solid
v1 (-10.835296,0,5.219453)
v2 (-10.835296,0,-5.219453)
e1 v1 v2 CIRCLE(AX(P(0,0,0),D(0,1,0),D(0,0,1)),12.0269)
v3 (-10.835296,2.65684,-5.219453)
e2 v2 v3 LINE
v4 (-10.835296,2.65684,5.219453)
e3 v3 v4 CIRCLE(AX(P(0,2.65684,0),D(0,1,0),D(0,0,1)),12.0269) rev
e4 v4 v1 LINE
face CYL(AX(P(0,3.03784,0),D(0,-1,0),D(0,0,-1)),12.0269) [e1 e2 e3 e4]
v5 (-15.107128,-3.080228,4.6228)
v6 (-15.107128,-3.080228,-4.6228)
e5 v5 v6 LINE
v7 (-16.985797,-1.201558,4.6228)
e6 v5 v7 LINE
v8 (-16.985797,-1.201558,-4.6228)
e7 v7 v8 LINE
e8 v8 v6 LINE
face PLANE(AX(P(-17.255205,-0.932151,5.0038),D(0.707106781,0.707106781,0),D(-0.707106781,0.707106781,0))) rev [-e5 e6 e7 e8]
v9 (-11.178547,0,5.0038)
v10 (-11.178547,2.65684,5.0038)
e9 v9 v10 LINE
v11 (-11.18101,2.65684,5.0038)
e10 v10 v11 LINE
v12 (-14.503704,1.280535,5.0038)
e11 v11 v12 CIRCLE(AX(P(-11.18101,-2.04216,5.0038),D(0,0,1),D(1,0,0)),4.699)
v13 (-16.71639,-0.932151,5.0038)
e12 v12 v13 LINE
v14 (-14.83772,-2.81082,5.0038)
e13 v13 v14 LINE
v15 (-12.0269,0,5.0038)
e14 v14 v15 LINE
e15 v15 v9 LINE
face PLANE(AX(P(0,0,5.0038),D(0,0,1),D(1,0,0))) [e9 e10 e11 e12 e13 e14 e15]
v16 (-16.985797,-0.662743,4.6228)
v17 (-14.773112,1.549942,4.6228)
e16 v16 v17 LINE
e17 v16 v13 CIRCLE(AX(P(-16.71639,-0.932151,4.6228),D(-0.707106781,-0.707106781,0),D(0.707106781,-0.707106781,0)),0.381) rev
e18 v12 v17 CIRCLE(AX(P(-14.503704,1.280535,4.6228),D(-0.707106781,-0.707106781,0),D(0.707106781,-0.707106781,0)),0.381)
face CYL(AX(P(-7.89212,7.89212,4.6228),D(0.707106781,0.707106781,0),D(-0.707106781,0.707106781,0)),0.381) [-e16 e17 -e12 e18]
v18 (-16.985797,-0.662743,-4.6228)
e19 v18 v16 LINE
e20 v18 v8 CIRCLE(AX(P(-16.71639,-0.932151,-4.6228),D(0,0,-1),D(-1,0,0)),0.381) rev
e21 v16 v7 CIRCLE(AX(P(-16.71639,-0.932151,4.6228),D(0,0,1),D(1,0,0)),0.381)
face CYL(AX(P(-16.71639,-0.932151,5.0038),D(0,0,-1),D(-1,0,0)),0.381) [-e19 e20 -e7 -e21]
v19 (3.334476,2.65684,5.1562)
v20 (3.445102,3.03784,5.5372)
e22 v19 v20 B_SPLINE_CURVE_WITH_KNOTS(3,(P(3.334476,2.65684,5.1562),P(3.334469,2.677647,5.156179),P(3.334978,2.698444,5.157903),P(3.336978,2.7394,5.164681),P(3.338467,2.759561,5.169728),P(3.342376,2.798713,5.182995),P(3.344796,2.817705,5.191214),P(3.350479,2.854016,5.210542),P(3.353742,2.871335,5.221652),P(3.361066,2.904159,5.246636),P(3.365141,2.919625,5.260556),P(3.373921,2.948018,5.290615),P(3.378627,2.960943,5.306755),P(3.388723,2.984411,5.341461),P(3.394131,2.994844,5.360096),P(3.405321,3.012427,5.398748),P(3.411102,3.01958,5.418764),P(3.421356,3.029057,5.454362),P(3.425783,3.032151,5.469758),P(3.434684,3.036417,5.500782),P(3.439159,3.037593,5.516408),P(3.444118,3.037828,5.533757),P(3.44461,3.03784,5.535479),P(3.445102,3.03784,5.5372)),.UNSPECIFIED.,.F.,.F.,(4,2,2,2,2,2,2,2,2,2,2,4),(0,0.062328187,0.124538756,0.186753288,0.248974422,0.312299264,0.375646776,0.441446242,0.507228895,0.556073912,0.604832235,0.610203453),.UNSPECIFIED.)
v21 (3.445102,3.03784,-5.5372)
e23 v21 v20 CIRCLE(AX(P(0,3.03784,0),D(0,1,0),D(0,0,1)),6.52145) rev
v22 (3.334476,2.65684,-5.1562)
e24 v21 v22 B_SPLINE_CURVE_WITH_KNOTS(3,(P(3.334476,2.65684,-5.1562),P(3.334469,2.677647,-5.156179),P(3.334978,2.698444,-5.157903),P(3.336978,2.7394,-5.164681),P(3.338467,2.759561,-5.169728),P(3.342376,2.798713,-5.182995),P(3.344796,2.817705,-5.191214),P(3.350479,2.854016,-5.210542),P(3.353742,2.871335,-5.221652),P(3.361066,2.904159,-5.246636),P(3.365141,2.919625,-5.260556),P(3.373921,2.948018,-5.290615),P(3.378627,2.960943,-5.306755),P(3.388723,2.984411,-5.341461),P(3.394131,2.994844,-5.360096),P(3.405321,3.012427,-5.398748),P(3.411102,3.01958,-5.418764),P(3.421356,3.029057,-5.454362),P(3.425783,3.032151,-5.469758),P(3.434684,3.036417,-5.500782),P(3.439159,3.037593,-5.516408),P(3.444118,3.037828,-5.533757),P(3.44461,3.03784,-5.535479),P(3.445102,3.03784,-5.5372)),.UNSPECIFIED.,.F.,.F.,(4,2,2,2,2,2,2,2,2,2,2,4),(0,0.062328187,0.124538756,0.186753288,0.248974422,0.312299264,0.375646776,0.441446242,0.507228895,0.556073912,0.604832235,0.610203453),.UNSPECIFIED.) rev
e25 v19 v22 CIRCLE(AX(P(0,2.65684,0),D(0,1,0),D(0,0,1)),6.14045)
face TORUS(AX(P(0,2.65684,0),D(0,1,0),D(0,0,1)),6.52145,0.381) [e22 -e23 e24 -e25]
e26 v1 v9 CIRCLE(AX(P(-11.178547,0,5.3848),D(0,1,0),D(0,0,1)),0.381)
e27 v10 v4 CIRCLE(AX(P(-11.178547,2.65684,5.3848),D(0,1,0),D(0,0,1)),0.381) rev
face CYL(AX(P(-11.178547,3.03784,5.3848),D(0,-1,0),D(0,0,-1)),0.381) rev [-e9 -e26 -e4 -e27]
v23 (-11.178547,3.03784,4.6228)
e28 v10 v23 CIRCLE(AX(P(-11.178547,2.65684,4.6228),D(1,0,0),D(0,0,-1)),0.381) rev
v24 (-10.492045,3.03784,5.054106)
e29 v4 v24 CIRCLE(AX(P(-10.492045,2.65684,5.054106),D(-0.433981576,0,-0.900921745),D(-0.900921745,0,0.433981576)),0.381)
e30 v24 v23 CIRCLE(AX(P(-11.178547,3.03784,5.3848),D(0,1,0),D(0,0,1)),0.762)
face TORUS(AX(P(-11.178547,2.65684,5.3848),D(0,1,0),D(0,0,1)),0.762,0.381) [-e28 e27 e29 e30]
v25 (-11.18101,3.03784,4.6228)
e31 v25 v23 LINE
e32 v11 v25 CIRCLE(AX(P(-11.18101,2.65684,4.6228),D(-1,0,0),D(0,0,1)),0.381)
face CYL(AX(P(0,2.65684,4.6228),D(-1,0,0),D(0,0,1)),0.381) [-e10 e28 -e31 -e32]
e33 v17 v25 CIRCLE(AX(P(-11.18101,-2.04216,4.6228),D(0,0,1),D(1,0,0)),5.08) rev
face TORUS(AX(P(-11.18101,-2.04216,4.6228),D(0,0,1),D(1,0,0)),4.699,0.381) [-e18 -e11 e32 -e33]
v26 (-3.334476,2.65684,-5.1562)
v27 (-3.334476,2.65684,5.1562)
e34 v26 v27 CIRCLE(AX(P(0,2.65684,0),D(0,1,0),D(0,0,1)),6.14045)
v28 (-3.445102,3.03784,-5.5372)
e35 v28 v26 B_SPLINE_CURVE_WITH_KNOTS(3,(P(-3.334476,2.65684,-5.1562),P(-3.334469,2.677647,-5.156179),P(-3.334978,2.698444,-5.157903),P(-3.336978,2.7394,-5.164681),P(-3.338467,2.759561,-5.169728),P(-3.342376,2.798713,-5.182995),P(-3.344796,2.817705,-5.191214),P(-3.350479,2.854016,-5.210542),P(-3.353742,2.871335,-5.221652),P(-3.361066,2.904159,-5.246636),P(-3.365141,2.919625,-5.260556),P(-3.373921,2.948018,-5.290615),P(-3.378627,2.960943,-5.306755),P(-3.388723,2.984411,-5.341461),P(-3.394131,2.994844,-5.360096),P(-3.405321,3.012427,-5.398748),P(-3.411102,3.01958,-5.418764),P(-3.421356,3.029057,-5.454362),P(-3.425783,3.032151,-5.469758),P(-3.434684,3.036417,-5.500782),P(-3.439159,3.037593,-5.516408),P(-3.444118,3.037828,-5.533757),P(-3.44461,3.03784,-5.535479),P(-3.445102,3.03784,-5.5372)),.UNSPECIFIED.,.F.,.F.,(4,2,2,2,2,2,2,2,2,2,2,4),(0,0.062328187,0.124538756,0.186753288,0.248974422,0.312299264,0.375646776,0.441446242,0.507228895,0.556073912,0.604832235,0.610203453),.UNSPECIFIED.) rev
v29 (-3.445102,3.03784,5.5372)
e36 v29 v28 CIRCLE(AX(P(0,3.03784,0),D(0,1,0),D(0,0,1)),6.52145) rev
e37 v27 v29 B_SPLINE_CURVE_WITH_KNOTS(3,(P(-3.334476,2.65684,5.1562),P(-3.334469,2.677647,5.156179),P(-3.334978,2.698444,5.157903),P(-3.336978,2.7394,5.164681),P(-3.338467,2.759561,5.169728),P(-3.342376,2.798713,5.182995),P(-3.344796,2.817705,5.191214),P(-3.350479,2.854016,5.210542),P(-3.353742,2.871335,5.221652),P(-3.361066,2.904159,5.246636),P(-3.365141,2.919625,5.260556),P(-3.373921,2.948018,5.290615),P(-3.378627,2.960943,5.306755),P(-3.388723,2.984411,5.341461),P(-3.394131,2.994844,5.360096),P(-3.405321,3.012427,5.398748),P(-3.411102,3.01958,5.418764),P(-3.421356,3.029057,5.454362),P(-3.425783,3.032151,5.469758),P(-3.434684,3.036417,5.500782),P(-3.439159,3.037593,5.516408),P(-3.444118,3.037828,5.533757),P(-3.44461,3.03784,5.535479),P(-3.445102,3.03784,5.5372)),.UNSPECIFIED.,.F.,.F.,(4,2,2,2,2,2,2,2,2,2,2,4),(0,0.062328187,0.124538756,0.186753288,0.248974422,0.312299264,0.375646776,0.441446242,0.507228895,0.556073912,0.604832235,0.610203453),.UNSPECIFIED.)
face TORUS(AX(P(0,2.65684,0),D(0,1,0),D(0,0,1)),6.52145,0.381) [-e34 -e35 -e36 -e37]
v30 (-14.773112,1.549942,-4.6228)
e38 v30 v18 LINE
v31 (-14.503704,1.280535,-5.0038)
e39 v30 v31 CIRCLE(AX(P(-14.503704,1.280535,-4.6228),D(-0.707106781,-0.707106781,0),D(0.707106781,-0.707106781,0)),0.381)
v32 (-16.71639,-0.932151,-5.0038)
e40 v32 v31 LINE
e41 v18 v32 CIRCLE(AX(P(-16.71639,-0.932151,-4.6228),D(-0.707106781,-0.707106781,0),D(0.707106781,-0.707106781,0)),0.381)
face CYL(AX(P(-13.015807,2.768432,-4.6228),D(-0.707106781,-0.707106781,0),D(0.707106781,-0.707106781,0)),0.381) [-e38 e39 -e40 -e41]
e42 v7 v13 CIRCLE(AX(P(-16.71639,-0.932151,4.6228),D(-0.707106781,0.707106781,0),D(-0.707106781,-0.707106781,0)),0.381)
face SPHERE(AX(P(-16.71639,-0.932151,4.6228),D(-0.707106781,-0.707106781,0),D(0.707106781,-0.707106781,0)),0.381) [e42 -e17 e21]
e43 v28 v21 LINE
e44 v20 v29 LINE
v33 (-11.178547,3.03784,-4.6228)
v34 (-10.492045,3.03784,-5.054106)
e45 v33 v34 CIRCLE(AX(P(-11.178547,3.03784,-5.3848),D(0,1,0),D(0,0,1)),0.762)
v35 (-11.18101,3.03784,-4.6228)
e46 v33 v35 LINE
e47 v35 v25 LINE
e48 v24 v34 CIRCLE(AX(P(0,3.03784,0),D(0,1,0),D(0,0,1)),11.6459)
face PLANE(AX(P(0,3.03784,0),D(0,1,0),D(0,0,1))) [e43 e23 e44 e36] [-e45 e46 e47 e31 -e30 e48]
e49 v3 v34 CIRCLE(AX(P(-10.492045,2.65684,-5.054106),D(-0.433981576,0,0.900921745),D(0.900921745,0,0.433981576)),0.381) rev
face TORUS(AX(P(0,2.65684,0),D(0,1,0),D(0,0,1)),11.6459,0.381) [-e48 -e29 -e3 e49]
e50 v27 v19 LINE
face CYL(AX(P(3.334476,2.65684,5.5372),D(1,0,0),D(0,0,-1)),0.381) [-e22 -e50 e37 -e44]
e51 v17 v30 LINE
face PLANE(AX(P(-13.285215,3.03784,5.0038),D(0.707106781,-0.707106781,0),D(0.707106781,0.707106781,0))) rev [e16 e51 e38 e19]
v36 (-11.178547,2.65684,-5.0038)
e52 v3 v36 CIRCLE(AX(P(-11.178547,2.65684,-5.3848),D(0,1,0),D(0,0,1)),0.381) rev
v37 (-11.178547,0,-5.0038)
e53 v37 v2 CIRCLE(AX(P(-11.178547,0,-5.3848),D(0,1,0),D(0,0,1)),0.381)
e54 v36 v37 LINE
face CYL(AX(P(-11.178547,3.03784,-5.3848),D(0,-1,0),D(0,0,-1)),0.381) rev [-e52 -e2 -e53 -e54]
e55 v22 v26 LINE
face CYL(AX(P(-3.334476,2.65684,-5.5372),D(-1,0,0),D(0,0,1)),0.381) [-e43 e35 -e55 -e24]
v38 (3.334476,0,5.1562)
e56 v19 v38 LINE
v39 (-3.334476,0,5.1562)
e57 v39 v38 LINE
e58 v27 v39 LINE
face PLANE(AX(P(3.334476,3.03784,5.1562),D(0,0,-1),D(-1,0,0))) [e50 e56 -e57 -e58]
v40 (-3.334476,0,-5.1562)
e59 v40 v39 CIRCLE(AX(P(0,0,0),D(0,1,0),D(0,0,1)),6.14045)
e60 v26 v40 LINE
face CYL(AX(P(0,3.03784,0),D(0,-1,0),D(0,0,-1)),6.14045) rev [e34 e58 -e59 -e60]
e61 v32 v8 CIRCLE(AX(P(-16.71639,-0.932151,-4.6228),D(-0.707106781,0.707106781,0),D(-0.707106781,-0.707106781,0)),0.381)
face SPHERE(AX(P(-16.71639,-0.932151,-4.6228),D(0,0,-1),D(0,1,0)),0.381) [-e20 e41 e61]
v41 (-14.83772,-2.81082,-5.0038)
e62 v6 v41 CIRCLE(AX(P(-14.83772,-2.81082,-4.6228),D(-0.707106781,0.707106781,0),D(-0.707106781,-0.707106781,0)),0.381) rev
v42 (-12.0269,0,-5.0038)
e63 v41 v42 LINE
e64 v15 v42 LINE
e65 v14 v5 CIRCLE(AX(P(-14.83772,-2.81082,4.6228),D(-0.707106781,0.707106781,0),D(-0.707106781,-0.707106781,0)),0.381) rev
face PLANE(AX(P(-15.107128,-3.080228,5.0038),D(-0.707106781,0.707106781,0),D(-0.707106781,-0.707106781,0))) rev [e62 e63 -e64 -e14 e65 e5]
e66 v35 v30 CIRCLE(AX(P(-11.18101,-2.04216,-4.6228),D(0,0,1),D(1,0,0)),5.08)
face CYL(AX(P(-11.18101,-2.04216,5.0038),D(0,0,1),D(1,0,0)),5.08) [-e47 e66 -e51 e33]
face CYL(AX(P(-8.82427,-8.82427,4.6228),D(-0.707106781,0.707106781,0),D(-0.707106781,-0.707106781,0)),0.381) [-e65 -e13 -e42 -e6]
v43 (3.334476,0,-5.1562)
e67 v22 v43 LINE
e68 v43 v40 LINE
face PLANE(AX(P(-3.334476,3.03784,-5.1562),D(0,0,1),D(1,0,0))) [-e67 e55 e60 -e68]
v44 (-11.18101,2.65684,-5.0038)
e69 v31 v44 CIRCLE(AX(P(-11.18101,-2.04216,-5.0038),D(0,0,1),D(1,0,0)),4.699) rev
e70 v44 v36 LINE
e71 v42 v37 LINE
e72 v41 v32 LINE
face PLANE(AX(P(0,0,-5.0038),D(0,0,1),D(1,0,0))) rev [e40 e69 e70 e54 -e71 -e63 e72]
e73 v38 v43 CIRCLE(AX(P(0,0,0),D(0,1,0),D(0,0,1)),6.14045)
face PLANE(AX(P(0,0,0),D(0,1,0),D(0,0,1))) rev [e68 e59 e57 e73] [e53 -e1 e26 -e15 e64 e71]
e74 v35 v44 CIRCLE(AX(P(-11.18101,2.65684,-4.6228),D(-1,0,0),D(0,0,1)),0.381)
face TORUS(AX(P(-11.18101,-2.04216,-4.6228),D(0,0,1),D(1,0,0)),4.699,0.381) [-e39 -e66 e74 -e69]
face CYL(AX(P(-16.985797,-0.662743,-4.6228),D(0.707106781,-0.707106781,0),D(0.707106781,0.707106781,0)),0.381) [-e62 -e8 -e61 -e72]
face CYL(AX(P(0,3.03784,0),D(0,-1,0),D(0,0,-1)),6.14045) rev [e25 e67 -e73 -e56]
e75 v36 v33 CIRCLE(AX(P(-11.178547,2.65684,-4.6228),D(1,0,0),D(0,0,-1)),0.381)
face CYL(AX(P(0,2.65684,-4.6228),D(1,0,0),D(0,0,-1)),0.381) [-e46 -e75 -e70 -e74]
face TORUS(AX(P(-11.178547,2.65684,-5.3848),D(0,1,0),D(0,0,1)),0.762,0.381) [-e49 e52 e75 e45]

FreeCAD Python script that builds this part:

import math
import FreeCAD as App
import Part
import Sketcher

V = App.Vector
Q = App.Units.Quantity


def edges_at(feature, points):
    """Names of the edges that pass closest to the given points."""
    edges = feature.Shape.Edges
    near = lambda p: min(range(len(edges)), key=lambda i: edges[i].distToShape(Part.Vertex(*p))[0])
    return sorted({f"Edge{near(p) + 1}" for p in points})

doc = App.newDocument("Part")
body = doc.addObject("PartDesign::Body", "Body")

sketch1 = body.newObject("Sketcher::SketchObject", "Sketch")
sketch1.AttachmentSupport = (doc.getObject("XZ_Plane"), [""])
sketch1.MapMode = "FlatFace"
sketch1.addGeometry(Part.Circle(V(0, 0, 0), V(0, 0, 1), 12.0269), False)
sketch1.addGeometry(Part.ArcOfCircle(Part.Circle(V(0, 0, 0), V(0, 0, 1), 6.14045), math.radians(122.890444), math.radians(237.109556)), False)
sketch1.addGeometry(Part.LineSegment(V(-3.334476, -5.1562, 0), V(3.334476, -5.1562, 0)), False)
sketch1.addGeometry(Part.ArcOfCircle(Part.Circle(V(0, 0, 0), V(0, 0, 1), 6.14045), math.radians(-57.109556), math.radians(57.109556)), False)
sketch1.addGeometry(Part.LineSegment(V(3.334476, 5.1562, 0), V(-3.334476, 5.1562, 0)), False)
sketch1.addConstraint(Sketcher.Constraint("Coincident", 1, 2, 2, 1))
sketch1.addConstraint(Sketcher.Constraint("Coincident", 2, 2, 3, 1))
sketch1.addConstraint(Sketcher.Constraint("Coincident", 3, 2, 4, 1))
sketch1.addConstraint(Sketcher.Constraint("Coincident", 4, 2, 1, 1))
sketch1.addConstraint(Sketcher.Constraint("Horizontal", 2))
sketch1.addConstraint(Sketcher.Constraint("Horizontal", 4))
sketch1.addConstraint(Sketcher.Constraint("Coincident", 0, 3, -1, 1))
sketch1.addConstraint(Sketcher.Constraint("Coincident", 1, 3, -1, 1))
sketch1.addConstraint(Sketcher.Constraint("Coincident", 3, 3, -1, 1))
sketch1.addConstraint(Sketcher.Constraint("Equal", 1, 3))
sketch1.addConstraint(Sketcher.Constraint("Vertical", 2, 2, 3, 2))
sketch1.addConstraint(Sketcher.Constraint("Diameter", 0, Q("0.947 in")))
sketch1.addConstraint(Sketcher.Constraint("DistanceY", 1, 2, -1, 1, Q("0.203 in")))
sketch1.addConstraint(Sketcher.Constraint("Radius", 1, 6.14045))
pad1 = body.newObject("PartDesign::Pad", "Pad")
pad1.Profile = sketch1
pad1.Length = Q("0.1196 in")
pad1.Reversed = True

sketch2 = body.newObject("Sketcher::SketchObject", "Sketch001")
sketch2.AttachmentSupport = (doc.getObject("XY_Plane"), [""])
sketch2.MapMode = "FlatFace"
sketch2.addGeometry(Part.LineSegment(V(-6.14045, 3.03784, 0), V(-13.285215, 3.03784, 0)), False)
sketch2.addGeometry(Part.LineSegment(V(-13.285215, 3.03784, 0), V(-17.255205, -0.932151, 0)), False)
sketch2.addGeometry(Part.LineSegment(V(-17.255205, -0.932151, 0), V(-15.107128, -3.080228, 0)), False)
sketch2.addGeometry(Part.LineSegment(V(-15.107128, -3.080228, 0), V(-12.0269, 0, 0)), False)
sketch2.addGeometry(Part.LineSegment(V(-12.0269, 0, 0), V(-6.14045, 0, 0)), False)
sketch2.addGeometry(Part.LineSegment(V(-6.14045, 0, 0), V(-6.14045, 3.03784, 0)), False)
sketch2.addConstraint(Sketcher.Constraint("Coincident", 0, 2, 1, 1))
sketch2.addConstraint(Sketcher.Constraint("Coincident", 1, 2, 2, 1))
sketch2.addConstraint(Sketcher.Constraint("Coincident", 2, 2, 3, 1))
sketch2.addConstraint(Sketcher.Constraint("Coincident", 3, 2, 4, 1))
sketch2.addConstraint(Sketcher.Constraint("Coincident", 4, 2, 5, 1))
sketch2.addConstraint(Sketcher.Constraint("Coincident", 5, 2, 0, 1))
sketch2.addConstraint(Sketcher.Constraint("Horizontal", 0))
sketch2.addConstraint(Sketcher.Constraint("Horizontal", 4))
sketch2.addConstraint(Sketcher.Constraint("Vertical", 5))
sketch2.addConstraint(Sketcher.Constraint("PointOnObject", 3, 2, -1))
sketch2.addConstraint(Sketcher.Constraint("Perpendicular", 1, 2))
sketch2.addConstraint(Sketcher.Constraint("Perpendicular", 2, 3))
sketch2.addConstraint(Sketcher.Constraint("Angle", 1, Q("-135 deg")))
sketch2.addConstraint(Sketcher.Constraint("DistanceY", 5, 1, 5, 2, Q("0.1196 in")))
sketch2.addConstraint(Sketcher.Constraint("Distance", 2, Q("0.1196 in")))
sketch2.addConstraint(Sketcher.Constraint("Distance", 3, Q("0.1715 in")))
sketch2.addConstraint(Sketcher.Constraint("DistanceX", 3, 2, -1, 1, Q("0.4735 in")))
sketch2.addConstraint(Sketcher.Constraint("DistanceX", 4, 1, 4, 2, 5.88645))
pad2 = body.newObject("PartDesign::Pad", "Pad001")
pad2.Profile = sketch2
pad2.Length = Q("0.394 in")
pad2.Midplane = True
doc.recompute()

fillet = body.newObject("PartDesign::Fillet", "Fillet")
fillet.Base = (pad2, edges_at(pad2, [(-13.285, 3.038, 0)]))
fillet.Radius = Q("0.2 in")
doc.recompute()

fillet2 = body.newObject("PartDesign::Fillet", "Fillet001")
fillet2.Base = (fillet, edges_at(fillet, [
    (6.14, 3.038, 0),
    (0, 3.038, -5.156),
    (12.027, 3.038, 0),
    (-10.937, 1.519, -5.004),
    (-10.937, 1.519, 5.004),
    (-11.059, 3.038, 5.004),
    (-16.181, -2.006, 5.004),
    (-11.059, 3.038, -5.004),
    (-16.181, -2.006, -5.004),
    (-17.255, -0.932, 0),
    (-16.014, 0.309, -5.004),
    (-16.014, 0.309, 5.004),
    (-13.125, 2.651, -5.004),
    (-13.125, 2.651, 5.004),
    (-6.14, 3.038, 0),
    (0, 3.038, 5.156),
]))
fillet2.Radius = Q("0.015 in")

doc.recompute()
